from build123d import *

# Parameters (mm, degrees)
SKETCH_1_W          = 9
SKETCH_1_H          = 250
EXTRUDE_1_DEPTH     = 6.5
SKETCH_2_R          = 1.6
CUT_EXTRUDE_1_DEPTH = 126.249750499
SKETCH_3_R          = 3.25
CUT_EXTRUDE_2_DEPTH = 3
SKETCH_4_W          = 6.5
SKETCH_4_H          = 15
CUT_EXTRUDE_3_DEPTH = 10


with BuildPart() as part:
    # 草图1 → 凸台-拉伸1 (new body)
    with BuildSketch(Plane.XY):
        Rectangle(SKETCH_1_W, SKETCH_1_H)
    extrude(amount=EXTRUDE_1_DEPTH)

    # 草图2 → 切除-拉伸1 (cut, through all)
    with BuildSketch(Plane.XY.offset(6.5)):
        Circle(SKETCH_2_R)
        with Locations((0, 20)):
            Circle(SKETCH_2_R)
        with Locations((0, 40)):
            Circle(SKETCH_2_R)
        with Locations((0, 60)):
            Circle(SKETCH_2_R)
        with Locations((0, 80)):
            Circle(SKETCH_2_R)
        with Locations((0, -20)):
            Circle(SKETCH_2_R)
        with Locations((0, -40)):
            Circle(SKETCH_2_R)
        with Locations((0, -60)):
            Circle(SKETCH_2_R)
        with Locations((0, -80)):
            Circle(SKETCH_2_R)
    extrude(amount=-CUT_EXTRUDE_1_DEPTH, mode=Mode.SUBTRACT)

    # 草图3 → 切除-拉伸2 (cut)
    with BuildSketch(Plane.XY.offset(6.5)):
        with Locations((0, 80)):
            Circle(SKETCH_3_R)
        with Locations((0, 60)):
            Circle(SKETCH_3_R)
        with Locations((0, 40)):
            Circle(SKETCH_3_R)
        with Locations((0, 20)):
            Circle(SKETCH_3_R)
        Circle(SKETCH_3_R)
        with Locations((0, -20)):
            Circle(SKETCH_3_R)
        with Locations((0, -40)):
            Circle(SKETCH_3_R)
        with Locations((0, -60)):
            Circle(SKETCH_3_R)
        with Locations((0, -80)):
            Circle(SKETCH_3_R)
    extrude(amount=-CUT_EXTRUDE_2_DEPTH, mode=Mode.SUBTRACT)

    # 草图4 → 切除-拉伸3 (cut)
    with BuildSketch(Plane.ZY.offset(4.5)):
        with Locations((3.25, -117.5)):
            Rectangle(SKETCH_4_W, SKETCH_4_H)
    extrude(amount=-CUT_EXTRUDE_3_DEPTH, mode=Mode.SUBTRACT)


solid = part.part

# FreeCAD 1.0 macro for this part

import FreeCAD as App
import Part
import Sketcher

V = App.Vector


def add_polygon(sketch, points):
    """Adds a closed chain of lines whose ends are joined by coincident constraints."""
    first, n = sketch.GeometryCount, len(points)
    for a, b in zip(points, points[1:] + points[:1]):
        sketch.addGeometry(Part.LineSegment(App.Vector(*a, 0), App.Vector(*b, 0)), False)
    for i in range(n):
        sketch.addConstraint(Sketcher.Constraint("Coincident", first + i, 2, first + (i + 1) % n, 1))

doc = App.newDocument("Part")
body = doc.addObject("PartDesign::Body", "Body")

# Sketch on XY plane
sketch1 = body.newObject("Sketcher::SketchObject", "Sketch")
sketch1.AttachmentSupport = (doc.getObject("XY_Plane"), [""])
sketch1.MapMode = "FlatFace"
add_polygon(sketch1, [(-4.5, 125), (-4.5, -125), (4.5, -125), (4.5, 125)])  # lines 0-3
sketch1.addConstraint([
    Sketcher.Constraint("Vertical", 0),
    Sketcher.Constraint("Horizontal", 1),
    Sketcher.Constraint("Vertical", 2),
    Sketcher.Constraint("Horizontal", 3),
    Sketcher.Constraint("Symmetric", 0, 2, 2, 2, -1, 1),
    Sketcher.Constraint("DistanceX", 1, 1, 1, 2, 9.0),
    Sketcher.Constraint("DistanceY", 0, 2, 0, 1, 250.0),
])
pad1 = body.newObject("PartDesign::Pad", "Pad")
pad1.Profile = sketch1
pad1.Length = 6.5

# Sketch on XY plane
sketch2 = body.newObject("Sketcher::SketchObject", "Sketch001")
sketch2.AttachmentSupport = (doc.getObject("XY_Plane"), [""])
sketch2.MapMode = "FlatFace"
sketch2.AttachmentOffset = App.Placement(V(0, 0, 6.5), App.Rotation())
sketch2.addGeometry([
    Part.Circle(V(0, 0, 0), V(0, 0, 1), 1.6),  # 0
    Part.Circle(V(0, 20, 0), V(0, 0, 1), 1.6),  # 1
    Part.Circle(V(0, 40, 0), V(0, 0, 1), 1.6),  # 2
    Part.Circle(V(0, 60, 0), V(0, 0, 1), 1.6),  # 3
    Part.Circle(V(0, 80, 0), V(0, 0, 1), 1.6),  # 4
    Part.Circle(V(0, -20, 0), V(0, 0, 1), 1.6),  # 5
    Part.Circle(V(0, -40, 0), V(0, 0, 1), 1.6),  # 6
    Part.Circle(V(0, -60, 0), V(0, 0, 1), 1.6),  # 7
    Part.Circle(V(0, -80, 0), V(0, 0, 1), 1.6),  # 8
], False)
sketch2.addConstraint([
    Sketcher.Constraint("Coincident", 0, 3, -1, 1),
    Sketcher.Constraint("Equal", 0, 1),
    Sketcher.Constraint("Equal", 1, 2),
    Sketcher.Constraint("Equal", 2, 3),
    Sketcher.Constraint("Equal", 3, 4),
    Sketcher.Constraint("Equal", 4, 5),
    Sketcher.Constraint("Equal", 5, 6),
    Sketcher.Constraint("Equal", 6, 7),
    Sketcher.Constraint("Equal", 7, 8),
    Sketcher.Constraint("Symmetric", 1, 3, 5, 3, -1, 1),
    Sketcher.Constraint("Symmetric", 2, 3, 6, 3, -1, 1),
    Sketcher.Constraint("Symmetric", 3, 3, 7, 3, -1, 1),
    Sketcher.Constraint("Symmetric", 4, 3, 8, 3, -1, 1),
    Sketcher.Constraint("PointOnObject", 1, 3, -2),
    Sketcher.Constraint("PointOnObject", 2, 3, -2),
    Sketcher.Constraint("PointOnObject", 3, 3, -2),
    Sketcher.Constraint("PointOnObject", 4, 3, -2),
    Sketcher.Constraint("Diameter", 0, 3.2),
    Sketcher.Constraint("DistanceY", -1, 1, 1, 3, 20.0),
    Sketcher.Constraint("DistanceY", -1, 1, 2, 3, 40.0),
    Sketcher.Constraint("DistanceY", -1, 1, 3, 3, 60.0),
    Sketcher.Constraint("DistanceY", -1, 1, 4, 3, 80.0),
])
pocket1 = body.newObject("PartDesign::Pocket", "Pocket")
pocket1.Profile = sketch2
pocket1.Type = "ThroughAll"

# Sketch on XY plane
sketch3 = body.newObject("Sketcher::SketchObject", "Sketch002")
sketch3.AttachmentSupport = (doc.getObject("XY_Plane"), [""])
sketch3.MapMode = "FlatFace"
sketch3.AttachmentOffset = App.Placement(V(0, 0, 6.5), App.Rotation())
sketch3.addGeometry([
    Part.Circle(V(0, 80, 0), V(0, 0, 1), 3.25),  # 0
    Part.Circle(V(0, 60, 0), V(0, 0, 1), 3.25),  # 1
    Part.Circle(V(0, 40, 0), V(0, 0, 1), 3.25),  # 2
    Part.Circle(V(0, 20, 0), V(0, 0, 1), 3.25),  # 3
    Part.Circle(V(0, 0, 0), V(0, 0, 1), 3.25),  # 4
    Part.Circle(V(0, -20, 0), V(0, 0, 1), 3.25),  # 5
    Part.Circle(V(0, -40, 0), V(0, 0, 1), 3.25),  # 6
    Part.Circle(V(0, -60, 0), V(0, 0, 1), 3.25),  # 7
    Part.Circle(V(0, -80, 0), V(0, 0, 1), 3.25),  # 8
], False)
sketch3.addConstraint([
    Sketcher.Constraint("Coincident", 4, 3, -1, 1),
    Sketcher.Constraint("Equal", 0, 1),
    Sketcher.Constraint("Equal", 1, 2),
    Sketcher.Constraint("Equal", 2, 3),
    Sketcher.Constraint("Equal", 3, 4),
    Sketcher.Constraint("Equal", 4, 5),
    Sketcher.Constraint("Equal", 5, 6),
    Sketcher.Constraint("Equal", 6, 7),
    Sketcher.Constraint("Equal", 7, 8),
    Sketcher.Constraint("Symmetric", 3, 3, 5, 3, -1, 1),
    Sketcher.Constraint("Symmetric", 2, 3, 6, 3, -1, 1),
    Sketcher.Constraint("Symmetric", 1, 3, 7, 3, -1, 1),
    Sketcher.Constraint("Symmetric", 0, 3, 8, 3, -1, 1),
    Sketcher.Constraint("PointOnObject", 0, 3, -2),
    Sketcher.Constraint("PointOnObject", 1, 3, -2),
    Sketcher.Constraint("PointOnObject", 2, 3, -2),
    Sketcher.Constraint("PointOnObject", 3, 3, -2),
    Sketcher.Constraint("Diameter", 0, 6.5),
    Sketcher.Constraint("DistanceY", -1, 1, 0, 3, 80.0),
    Sketcher.Constraint("DistanceY", -1, 1, 1, 3, 60.0),
    Sketcher.Constraint("DistanceY", -1, 1, 2, 3, 40.0),
    Sketcher.Constraint("DistanceY", -1, 1, 3, 3, 20.0),
])
pocket2 = body.newObject("PartDesign::Pocket", "Pocket001")
pocket2.Profile = sketch3
pocket2.Length = 3

# Sketch on YZ plane
sketch4 = body.newObject("Sketcher::SketchObject", "Sketch003")
sketch4.AttachmentSupport = (doc.getObject("YZ_Plane"), [""])
sketch4.MapMode = "FlatFace"
sketch4.AttachmentOffset = App.Placement(V(0, 0, -4.5), App.Rotation())
add_polygon(sketch4, [(-110, 0), (-125, 0), (-125, 6.5), (-110, 6.5)])  # lines 0-3
sketch4.addConstraint([
    Sketcher.Constraint("Horizontal", 0),
    Sketcher.Constraint("Vertical", 1),
    Sketcher.Constraint("Horizontal", 2),
    Sketcher.Constraint("Vertical", 3),
    Sketcher.Constraint("PointOnObject", 0, 2, -1),
    Sketcher.Constraint("DistanceX", 0, 2, 0, 1, 15.0),
    Sketcher.Constraint("DistanceY", 1, 1, 1, 2, 6.5),
    Sketcher.Constraint("DistanceX", 0, 2, -1, 1, 125.0),
])
pocket3 = body.newObject("PartDesign::Pocket", "Pocket002")
pocket3.Profile = sketch4
pocket3.Length = 10
pocket3.Reversed = True

doc.recompute()
